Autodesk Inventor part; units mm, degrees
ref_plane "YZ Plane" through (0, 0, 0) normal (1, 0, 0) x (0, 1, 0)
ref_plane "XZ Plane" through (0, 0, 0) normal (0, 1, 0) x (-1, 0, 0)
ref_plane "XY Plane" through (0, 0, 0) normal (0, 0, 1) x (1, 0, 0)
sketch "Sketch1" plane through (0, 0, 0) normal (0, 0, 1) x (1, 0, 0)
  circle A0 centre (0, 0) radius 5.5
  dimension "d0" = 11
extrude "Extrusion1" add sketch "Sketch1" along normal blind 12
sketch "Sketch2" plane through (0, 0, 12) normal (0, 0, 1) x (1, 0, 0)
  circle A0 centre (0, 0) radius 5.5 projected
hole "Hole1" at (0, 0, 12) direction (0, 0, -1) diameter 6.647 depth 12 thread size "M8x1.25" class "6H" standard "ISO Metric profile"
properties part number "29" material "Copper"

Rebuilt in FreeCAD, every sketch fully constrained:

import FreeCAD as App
import Part
import Sketcher

V = App.Vector

doc = App.newDocument("Part")
body = doc.addObject("PartDesign::Body", "Body")

# Sketch on XY plane
sketch1 = doc.addObject("Sketcher::SketchObject", "Sketch")
body.addObject(sketch1)
sketch1.AttachmentSupport = (doc.XY_Plane, [""])
sketch1.MapMode = "FlatFace"
sketch1.addGeometry(Part.Circle(V(0, 0, 0), V(0, 0, 1), 5.5), False)
sketch1.addConstraint([
    Sketcher.Constraint("Coincident", 0, 3, -1, 1),
    Sketcher.Constraint("Diameter", 0, 11.0),
])
pad1 = doc.addObject("PartDesign::Pad", "Pad")
body.addObject(pad1)
pad1.Profile = sketch1
pad1.Length = 12

# Sketch on XY plane
sketch2 = doc.addObject("Sketcher::SketchObject", "Sketch001")
body.addObject(sketch2)
sketch2.AttachmentSupport = (doc.XY_Plane, [""])
sketch2.MapMode = "FlatFace"
sketch2.AttachmentOffset = App.Placement(V(0, 0, 12), App.Rotation())
sketch2.addGeometry(Part.Circle(V(0, 0, 0), V(0, 0, 1), 3.3235), False)
sketch2.addConstraint([
    Sketcher.Constraint("Coincident", 0, 3, -1, 1),
    Sketcher.Constraint("Diameter", 0, 6.647),
])
doc.recompute()
hole = doc.addObject("PartDesign::Hole", "Hole")
body.addObject(hole)
hole.Profile = sketch2
hole.ThreadType = "None"
hole.Diameter = 6.647
hole.DepthType = "Dimension"
hole.Depth = 12
hole.DrillPoint = "Flat"

doc.recompute()
